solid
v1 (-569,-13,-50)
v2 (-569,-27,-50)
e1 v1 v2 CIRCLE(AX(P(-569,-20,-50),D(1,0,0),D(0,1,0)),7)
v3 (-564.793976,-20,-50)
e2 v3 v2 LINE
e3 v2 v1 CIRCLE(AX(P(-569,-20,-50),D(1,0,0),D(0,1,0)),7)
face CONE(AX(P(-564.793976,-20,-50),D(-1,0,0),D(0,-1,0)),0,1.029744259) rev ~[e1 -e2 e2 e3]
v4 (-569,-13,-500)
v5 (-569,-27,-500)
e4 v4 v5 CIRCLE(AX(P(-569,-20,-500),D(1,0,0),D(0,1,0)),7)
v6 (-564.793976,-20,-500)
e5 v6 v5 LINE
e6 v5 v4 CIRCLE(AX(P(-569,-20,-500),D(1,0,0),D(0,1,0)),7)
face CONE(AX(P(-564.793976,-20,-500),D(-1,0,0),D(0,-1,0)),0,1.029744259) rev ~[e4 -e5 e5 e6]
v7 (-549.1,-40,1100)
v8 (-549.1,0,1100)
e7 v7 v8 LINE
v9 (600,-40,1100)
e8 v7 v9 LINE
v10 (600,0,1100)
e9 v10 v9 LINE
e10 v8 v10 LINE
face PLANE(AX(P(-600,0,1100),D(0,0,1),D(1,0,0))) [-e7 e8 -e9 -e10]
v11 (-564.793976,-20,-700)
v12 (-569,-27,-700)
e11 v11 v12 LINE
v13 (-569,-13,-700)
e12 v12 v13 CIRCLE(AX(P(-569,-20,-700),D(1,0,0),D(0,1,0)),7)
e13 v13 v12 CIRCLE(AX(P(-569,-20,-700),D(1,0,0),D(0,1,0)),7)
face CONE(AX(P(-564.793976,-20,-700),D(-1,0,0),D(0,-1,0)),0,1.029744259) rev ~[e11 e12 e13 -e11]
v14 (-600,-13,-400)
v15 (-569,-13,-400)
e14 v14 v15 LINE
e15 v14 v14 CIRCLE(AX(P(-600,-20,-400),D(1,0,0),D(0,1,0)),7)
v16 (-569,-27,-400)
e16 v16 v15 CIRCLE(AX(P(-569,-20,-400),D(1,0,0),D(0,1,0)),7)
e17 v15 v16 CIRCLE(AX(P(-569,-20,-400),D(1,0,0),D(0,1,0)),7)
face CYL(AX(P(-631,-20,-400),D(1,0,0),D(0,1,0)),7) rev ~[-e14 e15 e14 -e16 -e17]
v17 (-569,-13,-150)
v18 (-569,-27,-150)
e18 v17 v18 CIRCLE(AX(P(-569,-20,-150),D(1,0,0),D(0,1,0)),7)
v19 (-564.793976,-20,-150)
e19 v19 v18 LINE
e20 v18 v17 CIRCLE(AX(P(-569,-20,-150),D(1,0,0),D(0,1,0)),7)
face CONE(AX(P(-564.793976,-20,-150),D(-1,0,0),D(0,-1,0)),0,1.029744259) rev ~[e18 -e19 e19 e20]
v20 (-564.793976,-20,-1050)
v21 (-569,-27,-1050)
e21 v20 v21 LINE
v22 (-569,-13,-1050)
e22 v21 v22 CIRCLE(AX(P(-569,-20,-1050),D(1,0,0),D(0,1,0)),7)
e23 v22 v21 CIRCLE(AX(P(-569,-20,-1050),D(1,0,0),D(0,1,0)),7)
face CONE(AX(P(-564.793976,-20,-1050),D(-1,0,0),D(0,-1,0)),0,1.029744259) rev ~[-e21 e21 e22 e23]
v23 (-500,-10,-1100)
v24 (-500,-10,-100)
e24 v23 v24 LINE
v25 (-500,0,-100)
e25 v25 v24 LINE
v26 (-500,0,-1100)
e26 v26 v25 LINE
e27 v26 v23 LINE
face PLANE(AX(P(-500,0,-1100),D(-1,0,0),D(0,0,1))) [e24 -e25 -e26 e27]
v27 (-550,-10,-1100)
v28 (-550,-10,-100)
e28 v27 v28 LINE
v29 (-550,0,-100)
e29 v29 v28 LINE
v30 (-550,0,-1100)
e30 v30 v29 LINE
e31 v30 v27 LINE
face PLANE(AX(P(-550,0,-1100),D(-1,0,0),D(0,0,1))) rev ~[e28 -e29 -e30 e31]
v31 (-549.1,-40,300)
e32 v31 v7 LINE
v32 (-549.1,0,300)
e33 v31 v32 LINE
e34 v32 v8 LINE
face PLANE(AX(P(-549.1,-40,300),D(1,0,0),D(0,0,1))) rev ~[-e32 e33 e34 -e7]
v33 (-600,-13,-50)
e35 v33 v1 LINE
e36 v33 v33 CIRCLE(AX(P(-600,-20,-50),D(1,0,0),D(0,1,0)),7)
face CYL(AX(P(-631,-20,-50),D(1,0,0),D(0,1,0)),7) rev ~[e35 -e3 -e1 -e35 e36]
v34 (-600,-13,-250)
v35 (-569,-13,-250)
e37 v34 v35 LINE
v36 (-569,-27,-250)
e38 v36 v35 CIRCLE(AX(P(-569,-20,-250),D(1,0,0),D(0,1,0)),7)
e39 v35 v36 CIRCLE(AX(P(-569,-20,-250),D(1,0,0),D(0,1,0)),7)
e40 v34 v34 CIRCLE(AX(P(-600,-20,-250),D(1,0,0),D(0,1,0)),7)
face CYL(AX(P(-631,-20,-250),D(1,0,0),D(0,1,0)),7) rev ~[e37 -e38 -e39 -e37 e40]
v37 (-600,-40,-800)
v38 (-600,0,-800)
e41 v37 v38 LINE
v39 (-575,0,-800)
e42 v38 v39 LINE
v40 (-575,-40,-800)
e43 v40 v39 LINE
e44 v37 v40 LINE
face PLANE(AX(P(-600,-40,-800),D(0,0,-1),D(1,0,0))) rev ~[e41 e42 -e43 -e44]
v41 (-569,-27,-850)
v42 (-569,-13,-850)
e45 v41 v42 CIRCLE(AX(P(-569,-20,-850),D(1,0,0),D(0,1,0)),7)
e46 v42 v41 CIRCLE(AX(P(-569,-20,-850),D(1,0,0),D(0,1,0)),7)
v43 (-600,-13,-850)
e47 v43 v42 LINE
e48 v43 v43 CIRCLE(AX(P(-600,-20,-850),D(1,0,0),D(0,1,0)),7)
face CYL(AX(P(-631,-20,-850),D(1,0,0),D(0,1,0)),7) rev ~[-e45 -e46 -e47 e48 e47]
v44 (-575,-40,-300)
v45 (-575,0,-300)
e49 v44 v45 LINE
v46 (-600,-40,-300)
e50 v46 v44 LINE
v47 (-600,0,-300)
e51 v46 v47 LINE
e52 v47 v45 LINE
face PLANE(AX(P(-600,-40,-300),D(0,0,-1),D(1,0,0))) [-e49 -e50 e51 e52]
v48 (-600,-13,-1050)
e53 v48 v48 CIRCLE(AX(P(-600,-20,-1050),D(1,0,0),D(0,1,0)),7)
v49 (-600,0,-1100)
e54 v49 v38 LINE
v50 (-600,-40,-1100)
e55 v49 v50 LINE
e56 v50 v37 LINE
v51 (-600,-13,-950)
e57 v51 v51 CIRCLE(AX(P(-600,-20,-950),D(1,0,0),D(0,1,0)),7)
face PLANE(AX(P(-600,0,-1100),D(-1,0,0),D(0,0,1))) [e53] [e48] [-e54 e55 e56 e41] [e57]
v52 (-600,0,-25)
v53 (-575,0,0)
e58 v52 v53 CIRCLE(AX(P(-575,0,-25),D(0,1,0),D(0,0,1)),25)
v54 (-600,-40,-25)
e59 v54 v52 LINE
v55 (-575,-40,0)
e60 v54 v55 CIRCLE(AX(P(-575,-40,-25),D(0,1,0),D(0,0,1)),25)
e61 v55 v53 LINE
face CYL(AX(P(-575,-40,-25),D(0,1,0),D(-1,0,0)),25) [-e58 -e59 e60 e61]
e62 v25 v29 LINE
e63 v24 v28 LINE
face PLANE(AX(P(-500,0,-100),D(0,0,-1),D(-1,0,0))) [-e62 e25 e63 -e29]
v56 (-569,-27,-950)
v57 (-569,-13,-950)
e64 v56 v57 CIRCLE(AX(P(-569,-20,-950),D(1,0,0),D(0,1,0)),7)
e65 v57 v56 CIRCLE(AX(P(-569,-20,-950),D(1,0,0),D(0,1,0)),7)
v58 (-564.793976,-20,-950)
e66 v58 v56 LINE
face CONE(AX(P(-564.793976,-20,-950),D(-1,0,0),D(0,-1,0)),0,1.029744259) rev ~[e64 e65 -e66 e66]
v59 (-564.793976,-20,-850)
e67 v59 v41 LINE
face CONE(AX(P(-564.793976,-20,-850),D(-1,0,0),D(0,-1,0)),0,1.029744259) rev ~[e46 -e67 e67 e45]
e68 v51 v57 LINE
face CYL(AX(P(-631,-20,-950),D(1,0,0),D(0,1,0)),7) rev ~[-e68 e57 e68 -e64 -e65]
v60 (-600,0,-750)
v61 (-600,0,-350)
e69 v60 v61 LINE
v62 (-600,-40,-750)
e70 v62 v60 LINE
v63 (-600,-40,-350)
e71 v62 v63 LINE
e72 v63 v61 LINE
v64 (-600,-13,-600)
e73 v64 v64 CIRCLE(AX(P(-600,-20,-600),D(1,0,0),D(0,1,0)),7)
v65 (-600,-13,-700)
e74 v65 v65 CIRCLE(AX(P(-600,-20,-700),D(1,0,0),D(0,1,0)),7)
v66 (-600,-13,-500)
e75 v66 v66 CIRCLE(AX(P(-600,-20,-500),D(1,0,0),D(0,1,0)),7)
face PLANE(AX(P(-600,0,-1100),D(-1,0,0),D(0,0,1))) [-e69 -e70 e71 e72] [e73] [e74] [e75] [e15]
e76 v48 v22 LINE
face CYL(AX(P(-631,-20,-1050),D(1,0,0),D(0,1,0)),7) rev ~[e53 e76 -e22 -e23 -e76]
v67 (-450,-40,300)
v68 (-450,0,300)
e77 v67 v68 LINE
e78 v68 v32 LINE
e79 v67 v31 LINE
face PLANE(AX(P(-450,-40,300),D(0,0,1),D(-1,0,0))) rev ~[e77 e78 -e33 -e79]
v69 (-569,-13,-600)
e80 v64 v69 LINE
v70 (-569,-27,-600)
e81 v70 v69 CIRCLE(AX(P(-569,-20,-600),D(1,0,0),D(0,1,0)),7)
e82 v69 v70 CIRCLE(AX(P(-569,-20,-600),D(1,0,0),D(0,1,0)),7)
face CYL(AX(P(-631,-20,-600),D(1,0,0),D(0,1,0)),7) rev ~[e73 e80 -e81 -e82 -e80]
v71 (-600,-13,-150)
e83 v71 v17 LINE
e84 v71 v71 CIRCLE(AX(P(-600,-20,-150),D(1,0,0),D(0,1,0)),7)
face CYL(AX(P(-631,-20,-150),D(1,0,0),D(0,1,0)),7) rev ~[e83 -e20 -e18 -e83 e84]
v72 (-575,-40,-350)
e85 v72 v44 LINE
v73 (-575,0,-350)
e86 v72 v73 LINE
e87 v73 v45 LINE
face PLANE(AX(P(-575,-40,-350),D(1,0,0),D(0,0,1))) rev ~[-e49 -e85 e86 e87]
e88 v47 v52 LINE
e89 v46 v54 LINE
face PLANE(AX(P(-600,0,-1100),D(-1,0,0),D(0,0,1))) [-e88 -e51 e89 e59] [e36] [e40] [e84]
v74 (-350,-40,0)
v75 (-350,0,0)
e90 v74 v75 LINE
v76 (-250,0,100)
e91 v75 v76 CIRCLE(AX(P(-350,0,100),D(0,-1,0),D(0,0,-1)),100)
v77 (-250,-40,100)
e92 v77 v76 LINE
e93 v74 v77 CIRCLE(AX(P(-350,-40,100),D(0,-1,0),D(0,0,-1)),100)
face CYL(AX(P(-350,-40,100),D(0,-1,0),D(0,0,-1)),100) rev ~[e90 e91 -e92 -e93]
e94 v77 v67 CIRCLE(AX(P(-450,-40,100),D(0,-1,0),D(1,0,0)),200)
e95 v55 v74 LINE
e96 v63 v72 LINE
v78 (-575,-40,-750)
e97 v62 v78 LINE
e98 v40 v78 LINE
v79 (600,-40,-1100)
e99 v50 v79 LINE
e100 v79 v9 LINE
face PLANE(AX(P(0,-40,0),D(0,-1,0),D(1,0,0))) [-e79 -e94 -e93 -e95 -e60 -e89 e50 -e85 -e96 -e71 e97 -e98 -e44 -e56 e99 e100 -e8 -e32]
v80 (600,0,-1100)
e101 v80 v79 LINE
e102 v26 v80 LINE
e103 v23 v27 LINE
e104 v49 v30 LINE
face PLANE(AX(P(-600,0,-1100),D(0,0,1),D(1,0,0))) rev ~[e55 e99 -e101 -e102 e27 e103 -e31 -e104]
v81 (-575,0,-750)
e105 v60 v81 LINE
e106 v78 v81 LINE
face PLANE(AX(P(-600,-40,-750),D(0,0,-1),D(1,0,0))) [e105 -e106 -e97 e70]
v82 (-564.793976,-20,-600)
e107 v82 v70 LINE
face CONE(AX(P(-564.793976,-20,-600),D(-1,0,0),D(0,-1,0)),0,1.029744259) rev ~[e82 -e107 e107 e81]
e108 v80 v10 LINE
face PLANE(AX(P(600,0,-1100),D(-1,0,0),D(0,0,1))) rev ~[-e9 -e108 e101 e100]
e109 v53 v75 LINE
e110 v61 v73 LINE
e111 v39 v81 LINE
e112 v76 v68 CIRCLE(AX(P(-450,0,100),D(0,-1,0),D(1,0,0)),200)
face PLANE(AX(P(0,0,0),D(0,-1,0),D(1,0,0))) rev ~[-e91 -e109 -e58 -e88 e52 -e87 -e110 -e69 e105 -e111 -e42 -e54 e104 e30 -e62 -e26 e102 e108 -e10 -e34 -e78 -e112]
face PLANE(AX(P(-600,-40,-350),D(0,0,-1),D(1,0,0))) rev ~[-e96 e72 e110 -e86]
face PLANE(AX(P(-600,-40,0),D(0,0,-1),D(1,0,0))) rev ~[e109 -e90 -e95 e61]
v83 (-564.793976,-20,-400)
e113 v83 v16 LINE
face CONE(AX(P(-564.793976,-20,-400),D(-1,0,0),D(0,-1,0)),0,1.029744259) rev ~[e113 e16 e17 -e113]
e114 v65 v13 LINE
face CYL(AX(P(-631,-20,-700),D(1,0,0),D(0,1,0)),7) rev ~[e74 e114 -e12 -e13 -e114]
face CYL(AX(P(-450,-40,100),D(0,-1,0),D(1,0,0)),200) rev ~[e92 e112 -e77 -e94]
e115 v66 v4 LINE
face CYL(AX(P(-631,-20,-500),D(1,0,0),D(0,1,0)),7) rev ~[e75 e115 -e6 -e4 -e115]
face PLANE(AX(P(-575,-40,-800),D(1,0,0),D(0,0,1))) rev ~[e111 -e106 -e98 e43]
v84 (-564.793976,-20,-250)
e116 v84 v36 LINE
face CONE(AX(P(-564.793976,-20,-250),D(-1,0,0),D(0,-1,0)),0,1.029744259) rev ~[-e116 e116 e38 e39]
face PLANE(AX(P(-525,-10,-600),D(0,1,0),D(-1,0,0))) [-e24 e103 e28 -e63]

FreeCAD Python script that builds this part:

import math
import FreeCAD as App
import Part
import Sketcher
from FreeCAD import Vector
Q = App.Units.Quantity


def edges_at(feature, points):
    """Names of the edges that pass closest to the given points."""
    edges = feature.Shape.Edges
    near = lambda p: min(range(len(edges)), key=lambda i: edges[i].distToShape(Part.Vertex(*p))[0])
    return sorted({f"Edge{near(p) + 1}" for p in points})


def add_polygon(sketch, points):
    """Adds a closed chain of lines whose ends are joined by coincident constraints."""
    first, n = sketch.GeometryCount, len(points)
    for a, b in zip(points, points[1:] + points[:1]):
        sketch.addGeometry(Part.LineSegment(App.Vector(*a, 0), App.Vector(*b, 0)), False)
    for i in range(n):
        sketch.addConstraint(Sketcher.Constraint("Coincident", first + i, 2, first + (i + 1) % n, 1))

doc = App.newDocument("Part")
body = doc.addObject("PartDesign::Body", "Body")

sketch1 = body.newObject("Sketcher::SketchObject", "Sketch")
sketch1.AttachmentSupport = (doc.getObject("XZ_Plane"), [""])
sketch1.MapMode = "FlatFace"
add_polygon(sketch1, [(-600, 1100), (-600, -1100), (600, -1100), (600, 1100)])
sketch1.addConstraint([
    Sketcher.Constraint("Vertical", 0),
    Sketcher.Constraint("Horizontal", 1),
    Sketcher.Constraint("Vertical", 2),
    Sketcher.Constraint("Horizontal", 3),
    Sketcher.Constraint("Symmetric", 0, 2, 2, 2, -1, 1),
    Sketcher.Constraint("DistanceX", 1, 1, 1, 2, Q("1200 mm")),
    Sketcher.Constraint("DistanceY", 0, 2, 0, 1, Q("2200 mm")),
])
pad1 = body.newObject("PartDesign::Pad", "Pad")
pad1.Profile = sketch1
pad1.Length = 40

sketch2 = body.newObject("Sketcher::SketchObject", "Sketch001")
sketch2.AttachmentSupport = (doc.getObject("XZ_Plane"), [""])
sketch2.MapMode = "FlatFace"
add_polygon(sketch2, [(-500, -100), (-500, -1100), (-550, -1100), (-550, -100)])
sketch2.addConstraint([
    Sketcher.Constraint("Vertical", 0),
    Sketcher.Constraint("Horizontal", 1),
    Sketcher.Constraint("Vertical", 2),
    Sketcher.Constraint("Horizontal", 3),
    Sketcher.Constraint("DistanceX", 1, 2, 1, 1, Q("50 mm")),
    Sketcher.Constraint("DistanceY", 0, 2, 0, 1, Q("1000 mm")),
    Sketcher.Constraint("DistanceX", 0, 2, -1, 1, Q("500 mm")),
    Sketcher.Constraint("DistanceY", 0, 2, -1, 1, Q("1100 mm")),
])
pocket1 = body.newObject("PartDesign::Pocket", "Pocket")
pocket1.Profile = sketch2
pocket1.Length = 10
pocket1.Reversed = True

sketch3 = body.newObject("Sketcher::SketchObject", "Sketch002")
sketch3.AttachmentSupport = (doc.getObject("XZ_Plane"), [""])
sketch3.MapMode = "FlatFace"
sketch3.AttachmentOffset = App.Placement(Vector(0, 0, 40), App.Rotation())
sketch3.addGeometry([
    Part.LineSegment(Vector(-600, 300, 0), Vector(-600, 0, 0)),
    Part.LineSegment(Vector(-600, 0, 0), Vector(-350, 0, 0)),
    Part.ArcOfCircle(Part.Circle(Vector(-350, 100, 0), Vector(0, 0, 1), 100), math.radians(-90), math.radians(0)),
    Part.ArcOfCircle(Part.Circle(Vector(-450, 100, 0), Vector(0, 0, 1), 200), math.radians(0), math.radians(90)),
    Part.LineSegment(Vector(-450, 300, 0), Vector(-600, 300, 0)),
], False)
sketch3.addConstraint([
    Sketcher.Constraint("Coincident", 0, 2, 1, 1),
    Sketcher.Constraint("Tangent", 1, 2, 2, 1),
    Sketcher.Constraint("Tangent", 2, 2, 3, 1),
    Sketcher.Constraint("Tangent", 3, 2, 4, 1),
    Sketcher.Constraint("Coincident", 4, 2, 0, 1),
    Sketcher.Constraint("Vertical", 0),
    Sketcher.Constraint("Horizontal", 1),
    Sketcher.Constraint("Horizontal", 4),
    Sketcher.Constraint("PointOnObject", 0, 2, -1),
    Sketcher.Constraint("Horizontal", 2, 3, 3, 3),
    Sketcher.Constraint("Radius", 2, Q("100 mm")),
    Sketcher.Constraint("Radius", 3, Q("200 mm")),
    Sketcher.Constraint("DistanceX", 1, 1, 1, 2, Q("250 mm")),
    Sketcher.Constraint("DistanceX", 2, 3, -1, 1, Q("350 mm")),
])
pocket2 = body.newObject("PartDesign::Pocket", "Pocket001")
pocket2.Profile = sketch3
pocket2.Type = "ThroughAll"
doc.recompute()

fillet = body.newObject("PartDesign::Fillet", "Fillet")
fillet.Base = (pocket2, edges_at(pocket2, [(-600, -20, 300), (-600, -20, 0)]))
fillet.Radius = 25

sketch4 = body.newObject("Sketcher::SketchObject", "Sketch003")
sketch4.AttachmentSupport = (doc.getObject("XZ_Plane"), [""])
sketch4.MapMode = "FlatFace"
sketch4.AttachmentOffset = App.Placement(Vector(0, 0, 40), App.Rotation())
sketch4.addGeometry([
    Part.LineSegment(Vector(-549.1, 1100, 0), Vector(-600, 1100, 0)),
    Part.LineSegment(Vector(-600, 1100, 0), Vector(-600, 325, 0)),
    Part.ArcOfCircle(Part.Circle(Vector(-575, 325, 0), Vector(0, 0, 1), 25), math.radians(180), math.radians(270)),
    Part.LineSegment(Vector(-575, 300, 0), Vector(-549.1, 300, 0)),
    Part.LineSegment(Vector(-549.1, 300, 0), Vector(-549.1, 1100, 0)),
], False)
sketch4.addConstraint([
    Sketcher.Constraint("Coincident", 0, 2, 1, 1),
    Sketcher.Constraint("Tangent", 1, 2, 2, 1),
    Sketcher.Constraint("Tangent", 2, 2, 3, 1),
    Sketcher.Constraint("Coincident", 3, 2, 4, 1),
    Sketcher.Constraint("Coincident", 4, 2, 0, 1),
    Sketcher.Constraint("Horizontal", 0),
    Sketcher.Constraint("Vertical", 1),
    Sketcher.Constraint("Horizontal", 3),
    Sketcher.Constraint("Vertical", 4),
    Sketcher.Constraint("Radius", 2, Q("25 mm")),
    Sketcher.Constraint("DistanceY", 1, 2, 1, 1, Q("775 mm")),
    Sketcher.Constraint("DistanceX", 0, 2, 0, 1, Q("50.9 mm")),
    Sketcher.Constraint("DistanceX", 2, 3, -1, 1, Q("575 mm")),
    Sketcher.Constraint("DistanceY", -1, 1, 2, 3, Q("325 mm")),
])
pocket3 = body.newObject("PartDesign::Pocket", "Pocket002")
pocket3.Profile = sketch4
pocket3.Type = "ThroughAll"

sketch5 = body.newObject("Sketcher::SketchObject", "Sketch004")
sketch5.AttachmentSupport = (doc.getObject("XZ_Plane"), [""])
sketch5.MapMode = "FlatFace"
sketch5.AttachmentOffset = App.Placement(Vector(0, 0, 40), App.Rotation())
add_polygon(sketch5, [(-600, -300), (-600, -350), (-575, -350), (-575, -300)])
add_polygon(sketch5, [(-600, -750), (-600, -800), (-575, -800), (-575, -750)])
sketch5.addConstraint([
    Sketcher.Constraint("Vertical", 0),
    Sketcher.Constraint("Horizontal", 1),
    Sketcher.Constraint("Vertical", 2),
    Sketcher.Constraint("Horizontal", 3),
    Sketcher.Constraint("Vertical", 4),
    Sketcher.Constraint("Horizontal", 5),
    Sketcher.Constraint("Vertical", 6),
    Sketcher.Constraint("Horizontal", 7),
    Sketcher.Constraint("Vertical", 3, 2, 4, 2),
    Sketcher.Constraint("Vertical", 2, 2, 5, 2),
    Sketcher.Constraint("Equal", 2, 4),
    Sketcher.Constraint("DistanceX", 1, 1, 1, 2, Q("25 mm")),
    Sketcher.Constraint("DistanceY", 0, 2, 0, 1, Q("50 mm")),
    Sketcher.Constraint("DistanceX", 0, 2, -1, 1, Q("600 mm")),
    Sketcher.Constraint("DistanceY", 0, 2, -1, 1, Q("350 mm")),
    Sketcher.Constraint("DistanceY", 4, 2, -1, 1, Q("800 mm")),
])
pocket4 = body.newObject("PartDesign::Pocket", "Pocket003")
pocket4.Profile = sketch5
pocket4.Type = "ThroughAll"

sketch6 = body.newObject("Sketcher::SketchObject", "Sketch005")
sketch6.AttachmentSupport = (doc.getObject("YZ_Plane"), [""])
sketch6.MapMode = "FlatFace"
sketch6.AttachmentOffset = App.Placement(Vector(0, 0, -600), App.Rotation())
sketch6.addGeometry([
    Part.Circle(Vector(-20, -1050, 0), Vector(0, 0, 1), 7),
    Part.Circle(Vector(-20, -950, 0), Vector(0, 0, 1), 7),
    Part.Circle(Vector(-20, -850, 0), Vector(0, 0, 1), 7),
    Part.Circle(Vector(-20, -700, 0), Vector(0, 0, 1), 7),
    Part.Circle(Vector(-20, -600, 0), Vector(0, 0, 1), 7),
    Part.Circle(Vector(-20, -500, 0), Vector(0, 0, 1), 7),
    Part.Circle(Vector(-20, -400, 0), Vector(0, 0, 1), 7),
    Part.Circle(Vector(-20, -250, 0), Vector(0, 0, 1), 7),
    Part.Circle(Vector(-20, -150, 0), Vector(0, 0, 1), 7),
    Part.Circle(Vector(-20, -50, 0), Vector(0, 0, 1), 7),
], False)
sketch6.addConstraint([
    Sketcher.Constraint("Equal", 0, 1),
    Sketcher.Constraint("Equal", 1, 2),
    Sketcher.Constraint("Equal", 2, 3),
    Sketcher.Constraint("Equal", 3, 4),
    Sketcher.Constraint("Equal", 4, 5),
    Sketcher.Constraint("Equal", 5, 6),
    Sketcher.Constraint("Equal", 6, 7),
    Sketcher.Constraint("Equal", 7, 8),
    Sketcher.Constraint("Equal", 8, 9),
    Sketcher.Constraint("Vertical", 0, 3, 1, 3),
    Sketcher.Constraint("Vertical", 1, 3, 2, 3),
    Sketcher.Constraint("Vertical", 2, 3, 3, 3),
    Sketcher.Constraint("Vertical", 3, 3, 4, 3),
    Sketcher.Constraint("Vertical", 4, 3, 5, 3),
    Sketcher.Constraint("Vertical", 5, 3, 6, 3),
    Sketcher.Constraint("Vertical", 6, 3, 7, 3),
    Sketcher.Constraint("Vertical", 7, 3, 8, 3),
    Sketcher.Constraint("Vertical", 8, 3, 9, 3),
    Sketcher.Constraint("Diameter", 0, Q("14 mm")),
    Sketcher.Constraint("DistanceX", 0, 3, -1, 1, Q("20 mm")),
    Sketcher.Constraint("DistanceY", 0, 3, -1, 1, Q("1050 mm")),
    Sketcher.Constraint("DistanceY", 1, 3, -1, 1, Q("950 mm")),
    Sketcher.Constraint("DistanceY", 2, 3, -1, 1, Q("850 mm")),
    Sketcher.Constraint("DistanceY", 3, 3, -1, 1, Q("700 mm")),
    Sketcher.Constraint("DistanceY", 4, 3, -1, 1, Q("600 mm")),
    Sketcher.Constraint("DistanceY", 5, 3, -1, 1, Q("500 mm")),
    Sketcher.Constraint("DistanceY", 6, 3, -1, 1, Q("400 mm")),
    Sketcher.Constraint("DistanceY", 7, 3, -1, 1, Q("250 mm")),
    Sketcher.Constraint("DistanceY", 8, 3, -1, 1, Q("150 mm")),
    Sketcher.Constraint("DistanceY", 9, 3, -1, 1, Q("50 mm")),
])
doc.recompute()
hole = body.newObject("PartDesign::Hole", "Hole")
hole.Profile = sketch6
hole.ThreadType = "None"
hole.Diameter = 14
hole.DepthType = "Dimension"
hole.Depth = 31
hole.DrillPoint = "Angled"
hole.DrillPointAngle = 118
hole.Reversed = True

doc.recompute()
